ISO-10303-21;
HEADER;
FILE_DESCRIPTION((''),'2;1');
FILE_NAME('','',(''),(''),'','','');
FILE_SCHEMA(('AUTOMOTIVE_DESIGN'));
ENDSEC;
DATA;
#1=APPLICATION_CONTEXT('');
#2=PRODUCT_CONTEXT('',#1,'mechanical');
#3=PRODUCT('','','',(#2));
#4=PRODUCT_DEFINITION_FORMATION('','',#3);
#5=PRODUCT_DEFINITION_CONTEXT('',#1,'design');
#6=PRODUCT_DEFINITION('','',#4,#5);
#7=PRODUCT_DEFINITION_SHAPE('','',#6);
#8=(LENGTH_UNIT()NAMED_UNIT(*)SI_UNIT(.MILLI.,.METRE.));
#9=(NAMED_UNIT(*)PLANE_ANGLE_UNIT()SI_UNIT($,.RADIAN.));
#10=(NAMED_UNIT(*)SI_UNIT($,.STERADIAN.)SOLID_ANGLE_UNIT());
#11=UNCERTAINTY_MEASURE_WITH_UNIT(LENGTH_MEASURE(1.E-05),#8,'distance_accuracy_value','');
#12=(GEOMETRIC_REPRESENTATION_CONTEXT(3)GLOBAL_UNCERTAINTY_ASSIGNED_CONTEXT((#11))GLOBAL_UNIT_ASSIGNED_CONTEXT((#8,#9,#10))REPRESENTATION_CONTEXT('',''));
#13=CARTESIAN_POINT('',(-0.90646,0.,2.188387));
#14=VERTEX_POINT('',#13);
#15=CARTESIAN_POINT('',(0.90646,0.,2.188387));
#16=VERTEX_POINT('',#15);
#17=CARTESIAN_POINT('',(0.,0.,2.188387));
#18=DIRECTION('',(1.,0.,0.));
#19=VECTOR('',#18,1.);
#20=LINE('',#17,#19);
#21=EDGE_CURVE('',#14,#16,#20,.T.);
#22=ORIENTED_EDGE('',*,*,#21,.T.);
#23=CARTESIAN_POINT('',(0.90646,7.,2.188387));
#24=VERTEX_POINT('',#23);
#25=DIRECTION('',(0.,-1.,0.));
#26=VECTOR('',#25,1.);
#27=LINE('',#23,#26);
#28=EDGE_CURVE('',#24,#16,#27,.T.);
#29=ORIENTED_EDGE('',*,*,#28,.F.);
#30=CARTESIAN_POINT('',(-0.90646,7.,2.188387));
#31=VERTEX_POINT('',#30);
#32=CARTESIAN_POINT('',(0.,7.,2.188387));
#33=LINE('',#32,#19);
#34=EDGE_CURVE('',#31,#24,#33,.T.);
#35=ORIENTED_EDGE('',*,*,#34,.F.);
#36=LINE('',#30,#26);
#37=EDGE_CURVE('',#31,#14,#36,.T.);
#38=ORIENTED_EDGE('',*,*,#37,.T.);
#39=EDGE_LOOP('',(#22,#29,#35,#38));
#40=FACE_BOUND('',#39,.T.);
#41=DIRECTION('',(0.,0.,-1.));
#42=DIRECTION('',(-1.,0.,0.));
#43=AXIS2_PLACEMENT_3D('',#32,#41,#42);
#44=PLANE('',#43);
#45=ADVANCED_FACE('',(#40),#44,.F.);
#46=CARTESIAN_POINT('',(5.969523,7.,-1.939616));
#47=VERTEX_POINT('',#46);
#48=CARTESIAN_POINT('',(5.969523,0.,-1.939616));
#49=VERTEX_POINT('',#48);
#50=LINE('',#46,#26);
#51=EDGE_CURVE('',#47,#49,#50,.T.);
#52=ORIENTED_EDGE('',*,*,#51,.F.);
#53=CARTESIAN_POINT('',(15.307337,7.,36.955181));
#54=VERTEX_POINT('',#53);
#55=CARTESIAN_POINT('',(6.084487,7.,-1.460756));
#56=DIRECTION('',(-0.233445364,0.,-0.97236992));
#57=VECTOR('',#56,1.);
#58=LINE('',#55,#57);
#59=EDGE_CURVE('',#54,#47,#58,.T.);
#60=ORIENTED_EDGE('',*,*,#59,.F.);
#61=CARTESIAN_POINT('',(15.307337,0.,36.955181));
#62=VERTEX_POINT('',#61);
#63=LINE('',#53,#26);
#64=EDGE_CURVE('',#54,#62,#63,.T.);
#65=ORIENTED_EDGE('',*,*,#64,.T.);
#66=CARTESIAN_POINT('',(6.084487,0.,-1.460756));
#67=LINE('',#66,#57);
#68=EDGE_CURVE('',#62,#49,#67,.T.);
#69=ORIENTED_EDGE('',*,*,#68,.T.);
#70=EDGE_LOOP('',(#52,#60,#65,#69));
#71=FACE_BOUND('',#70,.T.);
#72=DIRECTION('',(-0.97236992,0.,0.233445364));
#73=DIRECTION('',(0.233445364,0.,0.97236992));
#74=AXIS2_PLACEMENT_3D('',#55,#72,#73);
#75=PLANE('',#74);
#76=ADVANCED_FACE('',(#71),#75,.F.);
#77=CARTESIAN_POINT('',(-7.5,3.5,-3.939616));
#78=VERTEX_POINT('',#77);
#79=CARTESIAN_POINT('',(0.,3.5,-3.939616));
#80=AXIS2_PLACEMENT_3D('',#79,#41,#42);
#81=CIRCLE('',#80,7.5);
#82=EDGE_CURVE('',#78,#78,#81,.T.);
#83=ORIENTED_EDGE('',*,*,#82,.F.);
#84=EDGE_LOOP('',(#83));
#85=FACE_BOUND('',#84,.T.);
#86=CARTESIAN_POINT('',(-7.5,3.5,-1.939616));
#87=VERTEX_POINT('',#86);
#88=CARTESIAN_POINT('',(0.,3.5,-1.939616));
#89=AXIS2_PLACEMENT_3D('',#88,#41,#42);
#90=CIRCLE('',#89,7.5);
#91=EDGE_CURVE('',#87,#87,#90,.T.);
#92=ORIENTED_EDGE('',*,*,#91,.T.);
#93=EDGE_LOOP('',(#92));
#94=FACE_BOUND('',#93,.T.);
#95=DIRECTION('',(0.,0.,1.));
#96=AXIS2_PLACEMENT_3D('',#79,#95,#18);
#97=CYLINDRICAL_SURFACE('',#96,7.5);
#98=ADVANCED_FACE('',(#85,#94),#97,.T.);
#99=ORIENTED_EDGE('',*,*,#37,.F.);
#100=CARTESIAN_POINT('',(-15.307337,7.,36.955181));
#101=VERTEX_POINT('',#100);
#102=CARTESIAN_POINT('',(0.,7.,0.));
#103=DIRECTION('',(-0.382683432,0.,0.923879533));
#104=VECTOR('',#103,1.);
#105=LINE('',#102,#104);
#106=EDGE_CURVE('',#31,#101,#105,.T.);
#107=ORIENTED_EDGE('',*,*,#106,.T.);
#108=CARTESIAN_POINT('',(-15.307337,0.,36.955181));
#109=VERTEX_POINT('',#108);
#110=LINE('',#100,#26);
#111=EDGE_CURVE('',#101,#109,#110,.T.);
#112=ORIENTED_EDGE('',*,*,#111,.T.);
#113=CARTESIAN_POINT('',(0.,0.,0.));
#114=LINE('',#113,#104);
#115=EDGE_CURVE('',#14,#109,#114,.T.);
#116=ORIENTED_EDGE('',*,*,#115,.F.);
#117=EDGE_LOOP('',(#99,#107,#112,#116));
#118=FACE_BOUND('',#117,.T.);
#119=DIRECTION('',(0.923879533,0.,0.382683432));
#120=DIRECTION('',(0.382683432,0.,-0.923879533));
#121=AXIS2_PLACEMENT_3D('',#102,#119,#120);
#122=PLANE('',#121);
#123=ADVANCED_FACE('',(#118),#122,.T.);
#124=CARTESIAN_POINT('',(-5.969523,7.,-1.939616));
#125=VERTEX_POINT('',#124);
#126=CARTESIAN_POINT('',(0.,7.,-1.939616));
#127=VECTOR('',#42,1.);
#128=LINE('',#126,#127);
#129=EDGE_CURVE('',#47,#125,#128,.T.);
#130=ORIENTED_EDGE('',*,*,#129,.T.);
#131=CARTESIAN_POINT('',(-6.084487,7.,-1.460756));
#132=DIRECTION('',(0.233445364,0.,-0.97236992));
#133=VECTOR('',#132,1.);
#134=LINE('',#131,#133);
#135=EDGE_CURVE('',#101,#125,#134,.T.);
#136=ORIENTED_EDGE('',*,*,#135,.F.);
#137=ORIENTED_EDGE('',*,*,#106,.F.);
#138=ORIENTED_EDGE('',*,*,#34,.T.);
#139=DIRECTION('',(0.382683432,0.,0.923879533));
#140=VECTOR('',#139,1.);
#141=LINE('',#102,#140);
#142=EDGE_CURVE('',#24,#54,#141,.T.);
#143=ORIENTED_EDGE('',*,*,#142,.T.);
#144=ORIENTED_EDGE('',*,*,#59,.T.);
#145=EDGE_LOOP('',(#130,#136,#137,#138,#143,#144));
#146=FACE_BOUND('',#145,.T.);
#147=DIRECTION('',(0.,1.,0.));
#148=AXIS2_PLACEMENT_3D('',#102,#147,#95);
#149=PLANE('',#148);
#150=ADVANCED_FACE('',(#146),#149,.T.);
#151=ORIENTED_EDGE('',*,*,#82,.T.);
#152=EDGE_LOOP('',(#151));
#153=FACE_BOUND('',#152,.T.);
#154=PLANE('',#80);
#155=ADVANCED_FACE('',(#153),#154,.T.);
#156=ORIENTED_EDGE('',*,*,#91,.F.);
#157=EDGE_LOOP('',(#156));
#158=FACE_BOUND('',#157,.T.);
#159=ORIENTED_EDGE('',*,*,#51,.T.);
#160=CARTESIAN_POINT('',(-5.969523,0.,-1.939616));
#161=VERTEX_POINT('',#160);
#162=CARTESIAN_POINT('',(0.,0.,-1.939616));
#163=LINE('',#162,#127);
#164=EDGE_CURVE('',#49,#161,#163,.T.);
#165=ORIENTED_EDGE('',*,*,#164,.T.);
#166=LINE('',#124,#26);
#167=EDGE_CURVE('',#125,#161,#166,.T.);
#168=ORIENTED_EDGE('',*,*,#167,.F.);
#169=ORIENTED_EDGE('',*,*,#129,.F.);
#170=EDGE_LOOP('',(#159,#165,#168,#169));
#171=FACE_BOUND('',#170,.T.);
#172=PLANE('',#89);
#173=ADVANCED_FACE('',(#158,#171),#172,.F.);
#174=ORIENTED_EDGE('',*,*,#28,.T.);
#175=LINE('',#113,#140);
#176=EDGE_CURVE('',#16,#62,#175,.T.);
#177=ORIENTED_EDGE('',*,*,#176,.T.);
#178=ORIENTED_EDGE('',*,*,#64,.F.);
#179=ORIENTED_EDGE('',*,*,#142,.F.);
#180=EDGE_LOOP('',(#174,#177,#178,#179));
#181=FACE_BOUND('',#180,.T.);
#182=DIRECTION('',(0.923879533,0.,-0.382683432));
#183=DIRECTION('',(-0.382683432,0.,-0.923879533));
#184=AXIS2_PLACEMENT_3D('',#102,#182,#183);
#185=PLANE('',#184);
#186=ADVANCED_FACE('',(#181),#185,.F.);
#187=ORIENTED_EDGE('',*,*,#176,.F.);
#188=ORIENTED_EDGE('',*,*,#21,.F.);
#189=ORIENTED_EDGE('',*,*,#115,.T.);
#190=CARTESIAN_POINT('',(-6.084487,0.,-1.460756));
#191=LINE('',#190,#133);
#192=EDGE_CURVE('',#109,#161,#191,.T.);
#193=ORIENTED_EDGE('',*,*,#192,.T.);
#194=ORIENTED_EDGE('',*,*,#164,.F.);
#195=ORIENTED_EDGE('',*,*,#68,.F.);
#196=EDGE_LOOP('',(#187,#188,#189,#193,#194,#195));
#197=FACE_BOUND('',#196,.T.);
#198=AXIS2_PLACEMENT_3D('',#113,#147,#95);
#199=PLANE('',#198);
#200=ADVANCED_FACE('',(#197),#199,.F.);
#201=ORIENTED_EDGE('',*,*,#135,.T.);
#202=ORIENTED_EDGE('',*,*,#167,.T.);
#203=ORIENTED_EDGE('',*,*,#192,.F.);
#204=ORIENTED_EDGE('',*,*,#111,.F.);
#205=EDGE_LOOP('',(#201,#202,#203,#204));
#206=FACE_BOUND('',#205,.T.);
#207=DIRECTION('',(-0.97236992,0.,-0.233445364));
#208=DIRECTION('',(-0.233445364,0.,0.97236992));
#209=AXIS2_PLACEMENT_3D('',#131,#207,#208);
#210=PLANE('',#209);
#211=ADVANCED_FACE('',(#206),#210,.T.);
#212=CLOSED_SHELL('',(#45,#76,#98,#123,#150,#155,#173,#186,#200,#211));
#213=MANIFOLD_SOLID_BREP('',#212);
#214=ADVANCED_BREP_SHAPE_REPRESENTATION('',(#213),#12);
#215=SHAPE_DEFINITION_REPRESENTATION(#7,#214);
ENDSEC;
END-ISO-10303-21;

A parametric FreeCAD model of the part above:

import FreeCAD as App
import Part
import Sketcher
Q = App.Units.Quantity

doc = App.newDocument("Part")
body = doc.addObject("PartDesign::Body", "Body")

sketch1 = body.newObject("Sketcher::SketchObject", "Sketch")
sketch1.AttachmentSupport = (doc.getObject("XZ_Plane"), [""])
sketch1.MapMode = "FlatFace"
sketch1.addGeometry([
    Part.LineSegment(App.Vector(-6, -1.9, 0), App.Vector(-15.3, 37, 0)),
    Part.LineSegment(App.Vector(-15.3, 37, 0), App.Vector(-0.9, 2.2, 0)),
    Part.LineSegment(App.Vector(-0.9, 2.2, 0), App.Vector(0.9, 2.2, 0)),
    Part.LineSegment(App.Vector(0.9, 2.2, 0), App.Vector(15.3, 37, 0)),
    Part.LineSegment(App.Vector(15.3, 37, 0), App.Vector(6, -1.9, 0)),
    Part.LineSegment(App.Vector(6, -1.9, 0), App.Vector(-6, -1.9, 0)),
], False)
sketch1.addConstraint([
    Sketcher.Constraint("Coincident", 0, 2, 1, 1),
    Sketcher.Constraint("Coincident", 1, 2, 2, 1),
    Sketcher.Constraint("Coincident", 2, 2, 3, 1),
    Sketcher.Constraint("Coincident", 3, 2, 4, 1),
    Sketcher.Constraint("Coincident", 4, 2, 5, 1),
    Sketcher.Constraint("Coincident", 5, 2, 0, 1),
    Sketcher.Constraint("Horizontal", 2),
    Sketcher.Constraint("Horizontal", 5),
    Sketcher.Constraint("Symmetric", 0, 2, 3, 2, -2),
    Sketcher.Constraint("Equal", 1, 3),
    Sketcher.Constraint("Equal", 0, 4),
    Sketcher.Constraint("Distance", 0, 40.0),
    Sketcher.Constraint("Angle", 0, Q("103.5 deg")),
    Sketcher.Constraint("Angle", 1, Q("-67.5 deg")),
    Sketcher.Constraint("DistanceX", 2, 1, 2, 2, 1.812919),
    Sketcher.Constraint("DistanceX", 5, 2, 5, 1, 11.939045),
    Sketcher.Constraint("DistanceY", -1, 1, 0, 2, 36.955181),
])
pad1 = body.newObject("PartDesign::Pad", "Pad")
pad1.Profile = sketch1
pad1.Length = 7
pad1.Reversed = True

sketch2 = body.newObject("Sketcher::SketchObject", "Sketch001")
sketch2.AttachmentSupport = (doc.getObject("XY_Plane"), [""])
sketch2.MapMode = "FlatFace"
sketch2.AttachmentOffset = App.Placement(App.Vector(0, 0, -1.939616), App.Rotation())
sketch2.addGeometry(Part.Circle(App.Vector(0, 4, 0), App.Vector(0, 0, 1), 8), False)
sketch2.addConstraint([
    Sketcher.Constraint("PointOnObject", 0, 3, -2),
    Sketcher.Constraint("Diameter", 0, 15.0),
    Sketcher.Constraint("DistanceY", -1, 1, 0, 3, 3.5),
])
pad2 = body.newObject("PartDesign::Pad", "Pad001")
pad2.Profile = sketch2
pad2.Length = 2
pad2.Reversed = True

doc.recompute()
